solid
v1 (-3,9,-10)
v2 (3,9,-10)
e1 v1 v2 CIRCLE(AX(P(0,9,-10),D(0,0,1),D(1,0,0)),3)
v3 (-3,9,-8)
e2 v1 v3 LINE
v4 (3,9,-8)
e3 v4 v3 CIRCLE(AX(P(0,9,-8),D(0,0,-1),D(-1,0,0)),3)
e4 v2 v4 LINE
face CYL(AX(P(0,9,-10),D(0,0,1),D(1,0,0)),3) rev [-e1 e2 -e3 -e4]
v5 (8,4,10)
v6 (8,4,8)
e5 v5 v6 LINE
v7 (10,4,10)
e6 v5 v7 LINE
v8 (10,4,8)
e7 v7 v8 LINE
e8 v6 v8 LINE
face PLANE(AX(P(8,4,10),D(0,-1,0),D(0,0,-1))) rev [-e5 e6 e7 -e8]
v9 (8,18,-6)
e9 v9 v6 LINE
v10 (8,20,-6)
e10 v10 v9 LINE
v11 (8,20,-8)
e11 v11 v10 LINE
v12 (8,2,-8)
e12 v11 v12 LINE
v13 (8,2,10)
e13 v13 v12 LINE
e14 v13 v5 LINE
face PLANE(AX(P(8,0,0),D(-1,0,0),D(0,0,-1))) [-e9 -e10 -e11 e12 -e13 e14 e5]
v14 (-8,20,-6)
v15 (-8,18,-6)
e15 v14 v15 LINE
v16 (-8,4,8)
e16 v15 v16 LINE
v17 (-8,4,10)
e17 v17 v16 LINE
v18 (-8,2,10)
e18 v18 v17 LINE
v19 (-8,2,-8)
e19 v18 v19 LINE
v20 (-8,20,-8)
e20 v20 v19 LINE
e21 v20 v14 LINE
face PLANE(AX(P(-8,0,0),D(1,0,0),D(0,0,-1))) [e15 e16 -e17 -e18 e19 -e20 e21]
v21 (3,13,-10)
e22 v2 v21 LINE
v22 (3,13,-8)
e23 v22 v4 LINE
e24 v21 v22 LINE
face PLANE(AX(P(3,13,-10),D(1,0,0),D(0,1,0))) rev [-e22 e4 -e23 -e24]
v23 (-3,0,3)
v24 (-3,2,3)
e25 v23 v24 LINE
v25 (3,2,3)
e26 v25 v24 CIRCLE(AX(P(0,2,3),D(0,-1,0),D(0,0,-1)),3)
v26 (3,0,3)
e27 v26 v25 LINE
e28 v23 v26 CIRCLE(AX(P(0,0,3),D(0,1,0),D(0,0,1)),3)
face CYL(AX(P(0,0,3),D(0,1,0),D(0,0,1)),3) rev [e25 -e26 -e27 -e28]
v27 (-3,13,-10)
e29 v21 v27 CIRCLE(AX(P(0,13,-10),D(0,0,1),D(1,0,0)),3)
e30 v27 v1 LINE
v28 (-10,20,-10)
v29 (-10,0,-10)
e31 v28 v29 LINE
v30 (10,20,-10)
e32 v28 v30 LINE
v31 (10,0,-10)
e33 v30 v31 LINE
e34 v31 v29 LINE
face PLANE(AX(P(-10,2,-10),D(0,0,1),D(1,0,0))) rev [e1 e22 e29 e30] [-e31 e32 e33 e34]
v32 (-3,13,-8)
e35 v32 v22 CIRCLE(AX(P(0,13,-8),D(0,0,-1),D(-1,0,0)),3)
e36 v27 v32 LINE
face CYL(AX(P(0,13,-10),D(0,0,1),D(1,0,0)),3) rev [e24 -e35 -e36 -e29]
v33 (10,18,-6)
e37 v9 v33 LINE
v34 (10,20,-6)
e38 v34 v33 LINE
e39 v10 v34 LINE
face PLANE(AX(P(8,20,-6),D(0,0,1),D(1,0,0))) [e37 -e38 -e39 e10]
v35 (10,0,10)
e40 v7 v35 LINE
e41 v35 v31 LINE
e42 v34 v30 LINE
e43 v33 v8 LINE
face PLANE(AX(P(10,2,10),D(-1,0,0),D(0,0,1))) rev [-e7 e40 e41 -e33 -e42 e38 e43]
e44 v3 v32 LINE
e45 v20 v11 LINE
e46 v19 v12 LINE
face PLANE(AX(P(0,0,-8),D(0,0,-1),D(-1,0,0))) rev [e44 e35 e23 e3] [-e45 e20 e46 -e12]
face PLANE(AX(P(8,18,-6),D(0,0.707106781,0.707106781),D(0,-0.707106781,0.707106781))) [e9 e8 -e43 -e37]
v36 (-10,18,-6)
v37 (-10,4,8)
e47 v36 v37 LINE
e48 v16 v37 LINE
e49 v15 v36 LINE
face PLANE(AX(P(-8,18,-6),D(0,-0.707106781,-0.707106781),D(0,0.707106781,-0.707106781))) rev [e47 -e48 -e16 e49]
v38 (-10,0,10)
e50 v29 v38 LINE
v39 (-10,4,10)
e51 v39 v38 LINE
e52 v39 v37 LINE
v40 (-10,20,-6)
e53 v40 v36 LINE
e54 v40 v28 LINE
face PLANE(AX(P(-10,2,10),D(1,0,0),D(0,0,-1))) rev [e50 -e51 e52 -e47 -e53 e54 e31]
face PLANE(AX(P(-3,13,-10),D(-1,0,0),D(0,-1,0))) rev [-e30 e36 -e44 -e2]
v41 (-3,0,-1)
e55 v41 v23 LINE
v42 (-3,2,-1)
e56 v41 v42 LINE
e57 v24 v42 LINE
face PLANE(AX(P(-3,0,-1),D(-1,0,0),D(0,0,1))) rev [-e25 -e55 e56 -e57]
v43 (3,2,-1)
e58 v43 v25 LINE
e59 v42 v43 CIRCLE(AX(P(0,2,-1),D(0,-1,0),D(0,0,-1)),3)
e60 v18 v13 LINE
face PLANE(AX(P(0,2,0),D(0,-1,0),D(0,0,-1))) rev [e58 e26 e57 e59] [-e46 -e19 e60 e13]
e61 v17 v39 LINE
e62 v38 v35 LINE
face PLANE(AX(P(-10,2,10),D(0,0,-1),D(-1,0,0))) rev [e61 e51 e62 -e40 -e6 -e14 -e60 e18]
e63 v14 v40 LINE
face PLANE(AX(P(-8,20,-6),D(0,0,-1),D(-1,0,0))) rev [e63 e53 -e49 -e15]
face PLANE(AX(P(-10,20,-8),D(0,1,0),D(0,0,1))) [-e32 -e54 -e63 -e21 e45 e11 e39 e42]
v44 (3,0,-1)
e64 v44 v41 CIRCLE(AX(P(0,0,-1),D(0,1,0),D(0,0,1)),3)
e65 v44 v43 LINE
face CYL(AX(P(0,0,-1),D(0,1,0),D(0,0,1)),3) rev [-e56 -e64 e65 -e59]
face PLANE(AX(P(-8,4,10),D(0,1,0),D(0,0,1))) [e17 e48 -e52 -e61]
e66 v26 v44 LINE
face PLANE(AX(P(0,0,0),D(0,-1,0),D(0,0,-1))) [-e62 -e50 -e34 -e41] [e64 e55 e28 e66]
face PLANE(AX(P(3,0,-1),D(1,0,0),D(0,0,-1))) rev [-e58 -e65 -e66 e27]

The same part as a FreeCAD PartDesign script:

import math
import FreeCAD as App
import Part
import Sketcher
from FreeCAD import Vector

doc = App.newDocument("Part")
body = doc.addObject("PartDesign::Body", "Body")

sketch1 = body.newObject("Sketcher::SketchObject", "Sketch")
sketch1.AttachmentSupport = (doc.getObject("XZ_Plane"), [""])
sketch1.MapMode = "FlatFace"
sketch1.addGeometry([
    Part.LineSegment(Vector(-10, -10, 0), Vector(-10, 10, 0)),
    Part.LineSegment(Vector(-10, 10, 0), Vector(10, 10, 0)),
    Part.LineSegment(Vector(10, 10, 0), Vector(10, -10, 0)),
    Part.LineSegment(Vector(10, -10, 0), Vector(-10, -10, 0)),
], False)
sketch1.addConstraint([
    Sketcher.Constraint("Coincident", 0, 2, 1, 1),
    Sketcher.Constraint("Coincident", 1, 2, 2, 1),
    Sketcher.Constraint("Coincident", 2, 2, 3, 1),
    Sketcher.Constraint("Coincident", 3, 2, 0, 1),
    Sketcher.Constraint("Vertical", 0),
    Sketcher.Constraint("Horizontal", 1),
    Sketcher.Constraint("Vertical", 2),
    Sketcher.Constraint("Horizontal", 3),
    Sketcher.Constraint("Symmetric", 0, 2, 2, 2, -1, 1),
    Sketcher.Constraint("Equal", 3, 0),
    Sketcher.Constraint("DistanceX", 1, 1, 1, 2, 20.0),
])
pad1 = body.newObject("PartDesign::Pad", "Pad")
pad1.Profile = sketch1
pad1.Length = 2
pad1.Reversed = True

sketch2 = body.newObject("Sketcher::SketchObject", "Sketch001")
sketch2.AttachmentSupport = (doc.getObject("XY_Plane"), [""])
sketch2.MapMode = "FlatFace"
sketch2.AttachmentOffset = App.Placement(Vector(0, 0, -10), App.Rotation())
sketch2.addGeometry([
    Part.LineSegment(Vector(10, 20, 0), Vector(10, 0, 0)),
    Part.LineSegment(Vector(10, 0, 0), Vector(-10, 0, 0)),
    Part.LineSegment(Vector(-10, 0, 0), Vector(-10, 20, 0)),
    Part.LineSegment(Vector(-10, 20, 0), Vector(10, 20, 0)),
], False)
sketch2.addConstraint([
    Sketcher.Constraint("Coincident", 0, 2, 1, 1),
    Sketcher.Constraint("Coincident", 1, 2, 2, 1),
    Sketcher.Constraint("Coincident", 2, 2, 3, 1),
    Sketcher.Constraint("Coincident", 3, 2, 0, 1),
    Sketcher.Constraint("Vertical", 0),
    Sketcher.Constraint("Horizontal", 1),
    Sketcher.Constraint("Vertical", 2),
    Sketcher.Constraint("Horizontal", 3),
    Sketcher.Constraint("Symmetric", 0, 2, 1, 2, -1, 1),
    Sketcher.Constraint("Equal", 3, 0),
    Sketcher.Constraint("DistanceX", 1, 2, 1, 1, 20.0),
])
pad2 = body.newObject("PartDesign::Pad", "Pad001")
pad2.Profile = sketch2
pad2.Length = 2

sketch3 = body.newObject("Sketcher::SketchObject", "Sketch002")
sketch3.AttachmentSupport = (doc.getObject("YZ_Plane"), [""])
sketch3.MapMode = "FlatFace"
sketch3.AttachmentOffset = App.Placement(Vector(0, 0, -10), App.Rotation())
sketch3.addGeometry([
    Part.LineSegment(Vector(4, 8, 0), Vector(18, -6, 0)),
    Part.LineSegment(Vector(18, -6, 0), Vector(20, -6, 0)),
    Part.LineSegment(Vector(20, -6, 0), Vector(20, -8, 0)),
    Part.LineSegment(Vector(20, -8, 0), Vector(2, -8, 0)),
    Part.LineSegment(Vector(2, -8, 0), Vector(2, 10, 0)),
    Part.LineSegment(Vector(2, 10, 0), Vector(4, 10, 0)),
    Part.LineSegment(Vector(4, 10, 0), Vector(4, 8, 0)),
], False)
sketch3.addConstraint([
    Sketcher.Constraint("Coincident", 0, 2, 1, 1),
    Sketcher.Constraint("Coincident", 1, 2, 2, 1),
    Sketcher.Constraint("Coincident", 2, 2, 3, 1),
    Sketcher.Constraint("Coincident", 3, 2, 4, 1),
    Sketcher.Constraint("Coincident", 4, 2, 5, 1),
    Sketcher.Constraint("Coincident", 5, 2, 6, 1),
    Sketcher.Constraint("Coincident", 6, 2, 0, 1),
    Sketcher.Constraint("Horizontal", 1),
    Sketcher.Constraint("Vertical", 2),
    Sketcher.Constraint("Horizontal", 3),
    Sketcher.Constraint("Vertical", 4),
    Sketcher.Constraint("Horizontal", 5),
    Sketcher.Constraint("Vertical", 6),
    Sketcher.Constraint("Equal", 1, 5),
    Sketcher.Constraint("Equal", 5, 2),
    Sketcher.Constraint("Equal", 3, 4),
    Sketcher.Constraint("Equal", 2, 6),
    Sketcher.Constraint("DistanceX", 1, 1, 1, 2, 2.0),
    Sketcher.Constraint("DistanceX", 3, 2, 3, 1, 18.0),
    Sketcher.Constraint("DistanceX", -1, 1, 0, 2, 18.0),
    Sketcher.Constraint("DistanceY", 0, 2, -1, 1, 6.0),
])
pad3 = body.newObject("PartDesign::Pad", "Pad002")
pad3.Profile = sketch3
pad3.Length = 2
doc.recompute()

mirrored = body.newObject("PartDesign::Mirrored", "Mirrored")
mirrored.Originals = [pad3]
mirrored.MirrorPlane = (doc.getObject("YZ_Plane"), [""])
body.Tip = mirrored

sketch4 = body.newObject("Sketcher::SketchObject", "Sketch003")
sketch4.AttachmentSupport = (doc.getObject("XZ_Plane"), [""])
sketch4.MapMode = "FlatFace"
sketch4.AttachmentOffset = App.Placement(Vector(0, 0, -2), App.Rotation())
sketch4.addGeometry([
    Part.LineSegment(Vector(3, 3, 0), Vector(3, -1, 0)),
    Part.ArcOfCircle(Part.Circle(Vector(0, -1, 0), Vector(0, 0, 1), 3), math.radians(180), math.radians(360)),
    Part.LineSegment(Vector(-3, -1, 0), Vector(-3, 3, 0)),
    Part.ArcOfCircle(Part.Circle(Vector(0, 3, 0), Vector(0, 0, 1), 3), math.radians(0), math.radians(180)),
], False)
sketch4.addConstraint([
    Sketcher.Constraint("Tangent", 0, 2, 1, 2),
    Sketcher.Constraint("Tangent", 1, 1, 2, 1),
    Sketcher.Constraint("Tangent", 2, 2, 3, 2),
    Sketcher.Constraint("Tangent", 3, 1, 0, 1),
    Sketcher.Constraint("Vertical", 0),
    Sketcher.Constraint("Vertical", 2),
    Sketcher.Constraint("PointOnObject", 1, 3, -2),
    Sketcher.Constraint("Radius", 1, 3.0),
    Sketcher.Constraint("DistanceY", 0, 2, 0, 1, 4.0),
    Sketcher.Constraint("DistanceY", 1, 3, -1, 1, 1.0),
])
pocket1 = body.newObject("PartDesign::Pocket", "Pocket")
pocket1.Profile = sketch4
pocket1.Type = "ThroughAll"
pocket1.Midplane = True

sketch5 = body.newObject("Sketcher::SketchObject", "Sketch004")
sketch5.AttachmentSupport = (doc.getObject("XY_Plane"), [""])
sketch5.MapMode = "FlatFace"
sketch5.AttachmentOffset = App.Placement(Vector(0, 0, -8), App.Rotation())
sketch5.addGeometry([
    Part.LineSegment(Vector(3, 9, 0), Vector(3, 13, 0)),
    Part.ArcOfCircle(Part.Circle(Vector(0, 13, 0), Vector(0, 0, 1), 3), math.radians(0), math.radians(180)),
    Part.LineSegment(Vector(-3, 13, 0), Vector(-3, 9, 0)),
    Part.ArcOfCircle(Part.Circle(Vector(0, 9, 0), Vector(0, 0, 1), 3), math.radians(180), math.radians(360)),
], False)
sketch5.addConstraint([
    Sketcher.Constraint("Tangent", 0, 2, 1, 1),
    Sketcher.Constraint("Tangent", 1, 2, 2, 1),
    Sketcher.Constraint("Tangent", 2, 2, 3, 1),
    Sketcher.Constraint("Tangent", 3, 2, 0, 1),
    Sketcher.Constraint("Vertical", 0),
    Sketcher.Constraint("Vertical", 2),
    Sketcher.Constraint("PointOnObject", 1, 3, -2),
    Sketcher.Constraint("Radius", 1, 3.0),
    Sketcher.Constraint("DistanceY", 0, 1, 0, 2, 4.0),
    Sketcher.Constraint("DistanceY", -1, 1, 1, 3, 13.0),
])
pocket2 = body.newObject("PartDesign::Pocket", "Pocket001")
pocket2.Profile = sketch5
pocket2.Type = "ThroughAll"
pocket2.Midplane = True

doc.recompute()
